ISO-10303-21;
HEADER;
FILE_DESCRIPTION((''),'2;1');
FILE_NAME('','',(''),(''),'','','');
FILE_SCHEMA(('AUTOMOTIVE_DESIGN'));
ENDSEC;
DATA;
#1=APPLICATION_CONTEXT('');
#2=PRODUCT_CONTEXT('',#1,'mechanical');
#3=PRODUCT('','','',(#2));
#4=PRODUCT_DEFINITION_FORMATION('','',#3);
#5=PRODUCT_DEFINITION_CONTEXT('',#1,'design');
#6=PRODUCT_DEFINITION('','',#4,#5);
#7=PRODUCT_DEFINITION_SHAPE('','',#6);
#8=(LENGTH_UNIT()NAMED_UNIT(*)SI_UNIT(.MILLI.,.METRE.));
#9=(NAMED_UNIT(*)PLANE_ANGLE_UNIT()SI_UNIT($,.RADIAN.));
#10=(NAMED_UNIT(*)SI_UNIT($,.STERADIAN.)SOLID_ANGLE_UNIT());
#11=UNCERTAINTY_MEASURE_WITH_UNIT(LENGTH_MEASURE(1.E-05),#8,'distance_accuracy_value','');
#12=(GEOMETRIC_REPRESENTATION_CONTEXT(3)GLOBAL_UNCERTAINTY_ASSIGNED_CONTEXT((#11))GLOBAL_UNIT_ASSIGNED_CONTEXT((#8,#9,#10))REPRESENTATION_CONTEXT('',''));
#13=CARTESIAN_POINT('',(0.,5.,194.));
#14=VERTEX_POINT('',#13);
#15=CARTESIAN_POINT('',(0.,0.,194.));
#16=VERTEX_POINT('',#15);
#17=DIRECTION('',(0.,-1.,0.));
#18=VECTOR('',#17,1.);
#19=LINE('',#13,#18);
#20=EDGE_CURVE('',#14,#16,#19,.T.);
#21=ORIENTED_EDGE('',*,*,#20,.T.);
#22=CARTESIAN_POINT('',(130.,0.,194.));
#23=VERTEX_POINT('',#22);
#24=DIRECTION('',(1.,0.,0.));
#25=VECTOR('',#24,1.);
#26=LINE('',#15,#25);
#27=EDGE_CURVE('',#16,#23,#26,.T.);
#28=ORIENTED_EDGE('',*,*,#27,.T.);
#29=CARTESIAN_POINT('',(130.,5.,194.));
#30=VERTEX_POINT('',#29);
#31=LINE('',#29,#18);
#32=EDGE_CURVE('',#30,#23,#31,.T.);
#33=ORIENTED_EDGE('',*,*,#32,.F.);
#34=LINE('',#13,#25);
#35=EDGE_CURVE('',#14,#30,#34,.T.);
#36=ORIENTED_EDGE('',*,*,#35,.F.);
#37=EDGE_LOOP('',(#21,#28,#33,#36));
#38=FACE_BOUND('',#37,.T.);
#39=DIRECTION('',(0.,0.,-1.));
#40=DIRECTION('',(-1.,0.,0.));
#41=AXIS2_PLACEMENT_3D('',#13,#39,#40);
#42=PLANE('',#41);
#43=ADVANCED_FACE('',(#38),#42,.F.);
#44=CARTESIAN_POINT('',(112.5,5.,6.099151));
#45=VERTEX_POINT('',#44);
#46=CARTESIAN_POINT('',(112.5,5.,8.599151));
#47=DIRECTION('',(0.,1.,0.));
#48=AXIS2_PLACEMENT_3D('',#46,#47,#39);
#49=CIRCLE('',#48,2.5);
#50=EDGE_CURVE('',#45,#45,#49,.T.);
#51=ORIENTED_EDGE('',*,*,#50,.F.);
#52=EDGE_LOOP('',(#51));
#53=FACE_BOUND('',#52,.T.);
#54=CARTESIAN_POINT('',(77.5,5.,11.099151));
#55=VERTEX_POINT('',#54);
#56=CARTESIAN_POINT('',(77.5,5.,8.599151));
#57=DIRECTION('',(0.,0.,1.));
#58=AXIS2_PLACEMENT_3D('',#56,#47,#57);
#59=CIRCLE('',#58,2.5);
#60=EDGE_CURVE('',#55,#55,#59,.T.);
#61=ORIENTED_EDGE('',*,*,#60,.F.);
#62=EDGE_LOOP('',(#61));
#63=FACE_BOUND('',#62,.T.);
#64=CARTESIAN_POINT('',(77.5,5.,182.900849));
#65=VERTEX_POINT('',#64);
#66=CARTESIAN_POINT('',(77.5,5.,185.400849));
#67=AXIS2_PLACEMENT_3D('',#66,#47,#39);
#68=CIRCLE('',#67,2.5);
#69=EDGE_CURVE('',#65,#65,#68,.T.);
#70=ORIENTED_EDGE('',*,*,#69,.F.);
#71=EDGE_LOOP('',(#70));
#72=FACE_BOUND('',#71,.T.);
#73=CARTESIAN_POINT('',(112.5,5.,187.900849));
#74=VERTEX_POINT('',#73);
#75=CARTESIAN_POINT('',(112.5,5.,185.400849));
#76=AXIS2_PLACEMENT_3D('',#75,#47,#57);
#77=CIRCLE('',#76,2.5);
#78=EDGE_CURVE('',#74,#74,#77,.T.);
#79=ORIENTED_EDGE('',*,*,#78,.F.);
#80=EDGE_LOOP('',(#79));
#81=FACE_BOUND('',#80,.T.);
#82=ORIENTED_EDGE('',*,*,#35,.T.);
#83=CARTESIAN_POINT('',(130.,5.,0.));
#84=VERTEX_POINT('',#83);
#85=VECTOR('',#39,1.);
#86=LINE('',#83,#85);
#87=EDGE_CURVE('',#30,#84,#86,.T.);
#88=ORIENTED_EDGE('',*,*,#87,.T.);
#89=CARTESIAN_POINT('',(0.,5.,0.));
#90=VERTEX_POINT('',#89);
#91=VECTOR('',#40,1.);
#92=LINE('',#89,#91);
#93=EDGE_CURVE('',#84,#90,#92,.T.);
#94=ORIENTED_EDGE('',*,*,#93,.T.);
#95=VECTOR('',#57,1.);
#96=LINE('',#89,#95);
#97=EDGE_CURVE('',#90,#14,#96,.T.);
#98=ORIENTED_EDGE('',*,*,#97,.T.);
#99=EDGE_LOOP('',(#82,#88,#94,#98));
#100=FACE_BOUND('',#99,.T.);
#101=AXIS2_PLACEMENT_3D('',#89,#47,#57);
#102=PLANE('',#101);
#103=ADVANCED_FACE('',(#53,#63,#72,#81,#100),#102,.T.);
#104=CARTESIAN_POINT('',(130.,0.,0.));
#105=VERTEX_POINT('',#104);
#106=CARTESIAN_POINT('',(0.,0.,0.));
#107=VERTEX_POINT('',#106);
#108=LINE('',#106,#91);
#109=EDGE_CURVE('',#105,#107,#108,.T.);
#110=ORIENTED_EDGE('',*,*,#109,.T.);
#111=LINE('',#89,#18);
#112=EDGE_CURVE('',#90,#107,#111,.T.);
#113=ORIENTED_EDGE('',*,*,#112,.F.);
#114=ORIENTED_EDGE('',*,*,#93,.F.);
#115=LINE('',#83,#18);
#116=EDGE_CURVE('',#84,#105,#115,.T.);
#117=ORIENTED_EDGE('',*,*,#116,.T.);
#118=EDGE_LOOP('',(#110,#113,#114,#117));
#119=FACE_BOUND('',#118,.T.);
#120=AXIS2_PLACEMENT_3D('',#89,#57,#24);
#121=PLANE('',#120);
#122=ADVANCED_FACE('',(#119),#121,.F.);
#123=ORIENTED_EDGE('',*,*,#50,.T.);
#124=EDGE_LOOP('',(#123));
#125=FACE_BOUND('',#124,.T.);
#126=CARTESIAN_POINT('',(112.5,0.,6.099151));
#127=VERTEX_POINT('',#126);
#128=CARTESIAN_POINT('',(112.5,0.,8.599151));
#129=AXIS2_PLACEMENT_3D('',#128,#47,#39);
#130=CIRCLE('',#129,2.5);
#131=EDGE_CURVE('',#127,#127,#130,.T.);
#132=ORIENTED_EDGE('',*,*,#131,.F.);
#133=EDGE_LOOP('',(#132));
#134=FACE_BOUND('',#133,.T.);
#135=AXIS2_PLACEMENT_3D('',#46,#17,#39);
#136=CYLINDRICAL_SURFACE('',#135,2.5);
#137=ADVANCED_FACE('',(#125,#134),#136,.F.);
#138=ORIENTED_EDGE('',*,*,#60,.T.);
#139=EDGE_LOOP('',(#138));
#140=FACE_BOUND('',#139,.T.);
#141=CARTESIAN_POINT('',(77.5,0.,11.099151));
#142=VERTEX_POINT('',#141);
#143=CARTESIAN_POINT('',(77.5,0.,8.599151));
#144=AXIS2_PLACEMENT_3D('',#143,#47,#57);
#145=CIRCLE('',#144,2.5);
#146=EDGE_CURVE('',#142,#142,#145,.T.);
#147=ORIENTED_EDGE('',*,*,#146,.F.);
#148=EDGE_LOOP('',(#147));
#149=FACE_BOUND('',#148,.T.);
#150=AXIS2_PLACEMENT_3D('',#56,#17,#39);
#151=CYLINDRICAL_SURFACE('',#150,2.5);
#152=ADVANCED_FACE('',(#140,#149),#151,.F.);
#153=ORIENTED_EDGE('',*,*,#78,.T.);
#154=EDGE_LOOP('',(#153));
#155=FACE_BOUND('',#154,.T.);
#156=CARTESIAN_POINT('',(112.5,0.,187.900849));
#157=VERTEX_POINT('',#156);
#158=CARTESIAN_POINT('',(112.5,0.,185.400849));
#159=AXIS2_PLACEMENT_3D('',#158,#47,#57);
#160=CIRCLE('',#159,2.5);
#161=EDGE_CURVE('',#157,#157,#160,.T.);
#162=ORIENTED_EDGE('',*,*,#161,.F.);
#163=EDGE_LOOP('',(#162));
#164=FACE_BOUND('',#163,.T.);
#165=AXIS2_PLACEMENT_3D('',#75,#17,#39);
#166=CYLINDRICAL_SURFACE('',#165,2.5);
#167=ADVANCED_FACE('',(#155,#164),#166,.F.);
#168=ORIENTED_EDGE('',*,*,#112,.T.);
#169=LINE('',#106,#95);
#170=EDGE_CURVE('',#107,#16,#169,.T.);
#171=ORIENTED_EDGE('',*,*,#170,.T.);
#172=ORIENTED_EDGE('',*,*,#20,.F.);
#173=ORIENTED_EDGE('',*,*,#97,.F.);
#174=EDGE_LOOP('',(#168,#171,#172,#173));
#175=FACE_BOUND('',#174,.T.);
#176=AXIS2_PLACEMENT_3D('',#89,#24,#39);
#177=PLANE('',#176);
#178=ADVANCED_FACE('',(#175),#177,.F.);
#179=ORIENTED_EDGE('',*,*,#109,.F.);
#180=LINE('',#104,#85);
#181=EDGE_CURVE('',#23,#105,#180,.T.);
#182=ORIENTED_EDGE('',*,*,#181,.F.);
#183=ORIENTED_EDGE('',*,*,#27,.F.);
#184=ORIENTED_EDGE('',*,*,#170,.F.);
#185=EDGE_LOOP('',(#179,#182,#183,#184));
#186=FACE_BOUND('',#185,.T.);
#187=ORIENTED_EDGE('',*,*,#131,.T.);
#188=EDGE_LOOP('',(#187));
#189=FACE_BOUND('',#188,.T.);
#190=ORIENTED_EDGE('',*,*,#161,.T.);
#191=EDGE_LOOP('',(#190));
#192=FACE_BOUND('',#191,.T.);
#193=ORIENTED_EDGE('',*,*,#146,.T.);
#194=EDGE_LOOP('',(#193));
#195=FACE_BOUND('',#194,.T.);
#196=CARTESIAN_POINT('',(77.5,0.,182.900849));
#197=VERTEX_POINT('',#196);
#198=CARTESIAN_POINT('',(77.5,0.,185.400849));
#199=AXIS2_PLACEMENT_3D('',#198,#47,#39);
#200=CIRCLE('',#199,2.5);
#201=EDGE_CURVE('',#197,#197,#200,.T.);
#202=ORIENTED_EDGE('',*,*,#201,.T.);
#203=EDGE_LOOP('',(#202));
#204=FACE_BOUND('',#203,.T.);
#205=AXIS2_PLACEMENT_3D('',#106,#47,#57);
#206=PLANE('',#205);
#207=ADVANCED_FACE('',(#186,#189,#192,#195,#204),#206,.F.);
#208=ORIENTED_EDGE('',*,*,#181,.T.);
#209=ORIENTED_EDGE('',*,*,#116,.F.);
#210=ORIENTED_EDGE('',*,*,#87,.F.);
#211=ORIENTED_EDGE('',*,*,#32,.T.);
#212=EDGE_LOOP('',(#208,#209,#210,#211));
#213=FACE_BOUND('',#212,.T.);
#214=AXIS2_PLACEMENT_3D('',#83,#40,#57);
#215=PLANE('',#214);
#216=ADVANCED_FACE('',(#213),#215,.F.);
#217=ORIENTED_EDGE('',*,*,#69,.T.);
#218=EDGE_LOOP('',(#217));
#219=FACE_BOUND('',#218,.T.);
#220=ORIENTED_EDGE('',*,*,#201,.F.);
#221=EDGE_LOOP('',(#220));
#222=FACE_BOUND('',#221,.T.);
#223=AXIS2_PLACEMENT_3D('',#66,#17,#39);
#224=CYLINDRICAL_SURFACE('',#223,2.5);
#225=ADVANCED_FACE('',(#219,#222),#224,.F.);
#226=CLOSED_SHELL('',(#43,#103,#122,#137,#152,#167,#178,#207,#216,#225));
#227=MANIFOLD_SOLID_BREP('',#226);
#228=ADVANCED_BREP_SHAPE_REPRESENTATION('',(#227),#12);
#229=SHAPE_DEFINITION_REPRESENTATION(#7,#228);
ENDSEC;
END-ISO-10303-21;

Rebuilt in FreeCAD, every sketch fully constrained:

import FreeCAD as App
import Part
import Sketcher
from FreeCAD import Vector

doc = App.newDocument("Part")
params = doc.addObject("Spreadsheet::Sheet", "Params")
for row, (alias, value) in enumerate([
    ("sketch1_diameter", "5 mm"),
    ("sketch1_width", "130 mm"),
    ("sketch1_height", "194 mm"),
    ("pad1_length", "5 mm"),
], start=1):
    params.set(f"A{row}", alias)
    params.set(f"B{row}", "=" + value)
    params.setAlias(f"B{row}", alias)

body = doc.addObject("PartDesign::Body", "Body")

# Sketch on XZ plane
sketch1 = body.newObject("Sketcher::SketchObject", "Sketch")
sketch1.AttachmentSupport = (doc.getObject("XZ_Plane"), [""])
sketch1.MapMode = "FlatFace"
sketch1.addGeometry(Part.LineSegment(Vector(0, 0, 0), Vector(0, 194, 0)), False)
sketch1.addGeometry(Part.LineSegment(Vector(0, 194, 0), Vector(130, 194, 0)), False)
sketch1.addGeometry(Part.LineSegment(Vector(130, 194, 0), Vector(130, 0, 0)), False)
sketch1.addGeometry(Part.LineSegment(Vector(130, 0, 0), Vector(0, 0, 0)), False)
sketch1.addGeometry(Part.Circle(Vector(77.5, 185.4, 0), Vector(0, 0, 1), 2.5), False)
sketch1.addGeometry(Part.Circle(Vector(112.5, 185.4, 0), Vector(0, 0, 1), 2.5), False)
sketch1.addGeometry(Part.Circle(Vector(77.5, 8.6, 0), Vector(0, 0, 1), 2.5), False)
sketch1.addGeometry(Part.Circle(Vector(112.5, 8.6, 0), Vector(0, 0, 1), 2.5), False)
sketch1.addConstraint(Sketcher.Constraint("Coincident", 0, 2, 1, 1))
sketch1.addConstraint(Sketcher.Constraint("Coincident", 1, 2, 2, 1))
sketch1.addConstraint(Sketcher.Constraint("Coincident", 2, 2, 3, 1))
sketch1.addConstraint(Sketcher.Constraint("Coincident", 3, 2, 0, 1))
sketch1.addConstraint(Sketcher.Constraint("Vertical", 0))
sketch1.addConstraint(Sketcher.Constraint("Horizontal", 1))
sketch1.addConstraint(Sketcher.Constraint("Vertical", 2))
sketch1.addConstraint(Sketcher.Constraint("Horizontal", 3))
sketch1.addConstraint(Sketcher.Constraint("Coincident", 3, 2, -1, 1))
sketch1.addConstraint(Sketcher.Constraint("Equal", 4, 5))
sketch1.addConstraint(Sketcher.Constraint("Equal", 5, 6))
sketch1.addConstraint(Sketcher.Constraint("Equal", 6, 7))
sketch1.addConstraint(Sketcher.Constraint("Horizontal", 4, 3, 5, 3))
sketch1.addConstraint(Sketcher.Constraint("Horizontal", 6, 3, 7, 3))
sketch1.addConstraint(Sketcher.Constraint("Vertical", 4, 3, 6, 3))
sketch1.addConstraint(Sketcher.Constraint("Vertical", 5, 3, 7, 3))
sketch1.addConstraint(Sketcher.Constraint("Diameter", 4, 5.0))
sketch1.addConstraint(Sketcher.Constraint("DistanceX", 1, 1, 1, 2, 130.0))
sketch1.addConstraint(Sketcher.Constraint("DistanceY", 0, 1, 0, 2, 194.0))
sketch1.addConstraint(Sketcher.Constraint("DistanceX", 4, 3, 5, 3, 35.0))
sketch1.addConstraint(Sketcher.Constraint("DistanceX", -1, 1, 4, 3, 77.5))
sketch1.addConstraint(Sketcher.Constraint("DistanceY", 6, 3, 4, 3, 176.801699))
sketch1.addConstraint(Sketcher.Constraint("DistanceY", -1, 1, 4, 3, 185.400849))
sketch1.setExpression("Constraints[16]", "Params.sketch1_diameter")
sketch1.setExpression("Constraints[17]", "Params.sketch1_width")
sketch1.setExpression("Constraints[18]", "Params.sketch1_height")
pad1 = body.newObject("PartDesign::Pad", "Pad")
pad1.Profile = sketch1
pad1.setExpression("Length", "Params.pad1_length")
pad1.Reversed = True

doc.recompute()
